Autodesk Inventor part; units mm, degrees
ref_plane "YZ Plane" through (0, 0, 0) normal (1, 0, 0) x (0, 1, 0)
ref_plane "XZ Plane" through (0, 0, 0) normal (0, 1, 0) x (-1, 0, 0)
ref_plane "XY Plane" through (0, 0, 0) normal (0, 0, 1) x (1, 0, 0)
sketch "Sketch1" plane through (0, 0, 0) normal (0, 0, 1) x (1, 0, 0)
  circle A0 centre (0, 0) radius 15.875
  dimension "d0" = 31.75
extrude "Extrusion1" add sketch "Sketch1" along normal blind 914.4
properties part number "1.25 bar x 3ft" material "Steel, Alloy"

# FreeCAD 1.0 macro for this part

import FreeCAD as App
import Part
import Sketcher
Q = App.Units.Quantity

doc = App.newDocument("Part")
body = doc.addObject("PartDesign::Body", "Body")

sketch1 = doc.addObject("Sketcher::SketchObject", "Sketch")
body.addObject(sketch1)
sketch1.AttachmentSupport = (doc.XY_Plane, [""])
sketch1.MapMode = "FlatFace"
sketch1.addGeometry(Part.Circle(App.Vector(0, 0, 0), App.Vector(0, 0, 1), 16), False)
sketch1.addConstraint([
    Sketcher.Constraint("Coincident", 0, 3, -1, 1),
    Sketcher.Constraint("Diameter", 0, Q("1.25 in")),
])
pad1 = doc.addObject("PartDesign::Pad", "Pad")
body.addObject(pad1)
pad1.Profile = sketch1
pad1.Length = Q("36 in")

doc.recompute()
